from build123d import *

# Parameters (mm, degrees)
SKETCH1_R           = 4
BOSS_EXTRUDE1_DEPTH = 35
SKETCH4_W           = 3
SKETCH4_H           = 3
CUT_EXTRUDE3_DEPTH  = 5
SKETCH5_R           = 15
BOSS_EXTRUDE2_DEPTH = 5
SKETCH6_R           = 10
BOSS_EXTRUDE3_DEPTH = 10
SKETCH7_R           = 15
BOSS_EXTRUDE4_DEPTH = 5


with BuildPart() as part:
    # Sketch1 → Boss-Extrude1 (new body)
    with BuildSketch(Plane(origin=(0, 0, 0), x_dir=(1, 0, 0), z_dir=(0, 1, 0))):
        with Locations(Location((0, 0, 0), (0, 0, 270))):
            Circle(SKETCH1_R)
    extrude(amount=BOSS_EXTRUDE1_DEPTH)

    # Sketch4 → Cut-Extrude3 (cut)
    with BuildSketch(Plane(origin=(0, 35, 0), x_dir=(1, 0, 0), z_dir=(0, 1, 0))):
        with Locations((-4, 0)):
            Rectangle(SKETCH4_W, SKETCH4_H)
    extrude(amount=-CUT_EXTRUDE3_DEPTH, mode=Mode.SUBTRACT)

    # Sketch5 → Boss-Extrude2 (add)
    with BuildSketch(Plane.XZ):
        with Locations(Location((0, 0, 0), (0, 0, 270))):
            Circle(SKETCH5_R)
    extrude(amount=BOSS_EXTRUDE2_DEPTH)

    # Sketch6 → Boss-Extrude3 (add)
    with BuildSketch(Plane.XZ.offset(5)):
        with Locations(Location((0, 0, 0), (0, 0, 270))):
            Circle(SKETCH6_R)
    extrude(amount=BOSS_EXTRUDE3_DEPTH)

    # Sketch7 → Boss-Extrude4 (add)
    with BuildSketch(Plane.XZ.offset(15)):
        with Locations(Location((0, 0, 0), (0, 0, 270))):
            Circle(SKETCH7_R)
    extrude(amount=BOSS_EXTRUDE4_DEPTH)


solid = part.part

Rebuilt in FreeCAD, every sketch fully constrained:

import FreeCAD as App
import Part
import Sketcher


def add_polygon(sketch, points):
    """Adds a closed chain of lines whose ends are joined by coincident constraints."""
    first, n = sketch.GeometryCount, len(points)
    for a, b in zip(points, points[1:] + points[:1]):
        sketch.addGeometry(Part.LineSegment(App.Vector(*a, 0), App.Vector(*b, 0)), False)
    for i in range(n):
        sketch.addConstraint(Sketcher.Constraint("Coincident", first + i, 2, first + (i + 1) % n, 1))

doc = App.newDocument("Part")
params = doc.addObject("Spreadsheet::Sheet", "Params")
for row, (alias, value) in enumerate([
    ("sketch1_diameter", "8 mm"),
    ("pad1_length", "35 mm"),
    ("sketch2_width", "3 mm"),
    ("pocket1_length", "5 mm"),
    ("sketch3_diameter", "30 mm"),
    ("pad2_length", "5 mm"),
    ("sketch4_diameter", "20 mm"),
    ("pad3_length", "10 mm"),
    ("sketch5_diameter", "30 mm"),
    ("pad4_length", "5 mm"),
], start=1):
    params.set(f"A{row}", alias)
    params.set(f"B{row}", "=" + value)
    params.setAlias(f"B{row}", alias)

body = doc.addObject("PartDesign::Body", "Body")

sketch1 = body.newObject("Sketcher::SketchObject", "Sketch")
sketch1.AttachmentSupport = (doc.getObject("XZ_Plane"), [""])
sketch1.MapMode = "FlatFace"
sketch1.addGeometry(Part.Circle(App.Vector(0, 0, 0), App.Vector(0, 0, 1), 4), False)
sketch1.addConstraint(Sketcher.Constraint("Coincident", 0, 3, -1, 1))
sketch1.addConstraint(Sketcher.Constraint("Diameter", 0, 8.0))
sketch1.setExpression("Constraints[1]", "Params.sketch1_diameter")
pad1 = body.newObject("PartDesign::Pad", "Pad")
pad1.Profile = sketch1
pad1.setExpression("Length", "Params.pad1_length")
pad1.Reversed = True

sketch2 = body.newObject("Sketcher::SketchObject", "Sketch001")
sketch2.AttachmentSupport = (doc.getObject("XZ_Plane"), [""])
sketch2.MapMode = "FlatFace"
sketch2.AttachmentOffset = App.Placement(App.Vector(0, 0, -35), App.Rotation())
add_polygon(sketch2, [(-5.5, -1.5), (-5.5, 1.5), (-2.5, 1.5), (-2.5, -1.5)])
sketch2.addConstraint(Sketcher.Constraint("Vertical", 0))
sketch2.addConstraint(Sketcher.Constraint("Horizontal", 1))
sketch2.addConstraint(Sketcher.Constraint("Vertical", 2))
sketch2.addConstraint(Sketcher.Constraint("Horizontal", 3))
sketch2.addConstraint(Sketcher.Constraint("Equal", 3, 0))
sketch2.addConstraint(Sketcher.Constraint("DistanceX", 1, 1, 1, 2, 3.0))
sketch2.addConstraint(Sketcher.Constraint("DistanceX", 0, 2, -1, 1, 5.5))
sketch2.addConstraint(Sketcher.Constraint("DistanceY", -1, 1, 0, 2, 1.5))
sketch2.setExpression("Constraints[9]", "Params.sketch2_width")
pocket1 = body.newObject("PartDesign::Pocket", "Pocket")
pocket1.Profile = sketch2
pocket1.setExpression("Length", "Params.pocket1_length")
pocket1.Reversed = True

sketch3 = body.newObject("Sketcher::SketchObject", "Sketch002")
sketch3.AttachmentSupport = (doc.getObject("XZ_Plane"), [""])
sketch3.MapMode = "FlatFace"
sketch3.addGeometry(Part.Circle(App.Vector(0, 0, 0), App.Vector(0, 0, 1), 15), False)
sketch3.addConstraint(Sketcher.Constraint("Coincident", 0, 3, -1, 1))
sketch3.addConstraint(Sketcher.Constraint("Diameter", 0, 30.0))
sketch3.setExpression("Constraints[1]", "Params.sketch3_diameter")
pad2 = body.newObject("PartDesign::Pad", "Pad001")
pad2.Profile = sketch3
pad2.setExpression("Length", "Params.pad2_length")

sketch4 = body.newObject("Sketcher::SketchObject", "Sketch003")
sketch4.AttachmentSupport = (doc.getObject("XZ_Plane"), [""])
sketch4.MapMode = "FlatFace"
sketch4.AttachmentOffset = App.Placement(App.Vector(0, 0, 5), App.Rotation())
sketch4.addGeometry(Part.Circle(App.Vector(0, 0, 0), App.Vector(0, 0, 1), 10), False)
sketch4.addConstraint(Sketcher.Constraint("Coincident", 0, 3, -1, 1))
sketch4.addConstraint(Sketcher.Constraint("Diameter", 0, 20.0))
sketch4.setExpression("Constraints[1]", "Params.sketch4_diameter")
pad3 = body.newObject("PartDesign::Pad", "Pad002")
pad3.Profile = sketch4
pad3.setExpression("Length", "Params.pad3_length")

sketch5 = body.newObject("Sketcher::SketchObject", "Sketch004")
sketch5.AttachmentSupport = (doc.getObject("XZ_Plane"), [""])
sketch5.MapMode = "FlatFace"
sketch5.AttachmentOffset = App.Placement(App.Vector(0, 0, 15), App.Rotation())
sketch5.addGeometry(Part.Circle(App.Vector(0, 0, 0), App.Vector(0, 0, 1), 15), False)
sketch5.addConstraint(Sketcher.Constraint("Coincident", 0, 3, -1, 1))
sketch5.addConstraint(Sketcher.Constraint("Diameter", 0, 30.0))
sketch5.setExpression("Constraints[1]", "Params.sketch5_diameter")
pad4 = body.newObject("PartDesign::Pad", "Pad003")
pad4.Profile = sketch5
pad4.setExpression("Length", "Params.pad4_length")

doc.recompute()
